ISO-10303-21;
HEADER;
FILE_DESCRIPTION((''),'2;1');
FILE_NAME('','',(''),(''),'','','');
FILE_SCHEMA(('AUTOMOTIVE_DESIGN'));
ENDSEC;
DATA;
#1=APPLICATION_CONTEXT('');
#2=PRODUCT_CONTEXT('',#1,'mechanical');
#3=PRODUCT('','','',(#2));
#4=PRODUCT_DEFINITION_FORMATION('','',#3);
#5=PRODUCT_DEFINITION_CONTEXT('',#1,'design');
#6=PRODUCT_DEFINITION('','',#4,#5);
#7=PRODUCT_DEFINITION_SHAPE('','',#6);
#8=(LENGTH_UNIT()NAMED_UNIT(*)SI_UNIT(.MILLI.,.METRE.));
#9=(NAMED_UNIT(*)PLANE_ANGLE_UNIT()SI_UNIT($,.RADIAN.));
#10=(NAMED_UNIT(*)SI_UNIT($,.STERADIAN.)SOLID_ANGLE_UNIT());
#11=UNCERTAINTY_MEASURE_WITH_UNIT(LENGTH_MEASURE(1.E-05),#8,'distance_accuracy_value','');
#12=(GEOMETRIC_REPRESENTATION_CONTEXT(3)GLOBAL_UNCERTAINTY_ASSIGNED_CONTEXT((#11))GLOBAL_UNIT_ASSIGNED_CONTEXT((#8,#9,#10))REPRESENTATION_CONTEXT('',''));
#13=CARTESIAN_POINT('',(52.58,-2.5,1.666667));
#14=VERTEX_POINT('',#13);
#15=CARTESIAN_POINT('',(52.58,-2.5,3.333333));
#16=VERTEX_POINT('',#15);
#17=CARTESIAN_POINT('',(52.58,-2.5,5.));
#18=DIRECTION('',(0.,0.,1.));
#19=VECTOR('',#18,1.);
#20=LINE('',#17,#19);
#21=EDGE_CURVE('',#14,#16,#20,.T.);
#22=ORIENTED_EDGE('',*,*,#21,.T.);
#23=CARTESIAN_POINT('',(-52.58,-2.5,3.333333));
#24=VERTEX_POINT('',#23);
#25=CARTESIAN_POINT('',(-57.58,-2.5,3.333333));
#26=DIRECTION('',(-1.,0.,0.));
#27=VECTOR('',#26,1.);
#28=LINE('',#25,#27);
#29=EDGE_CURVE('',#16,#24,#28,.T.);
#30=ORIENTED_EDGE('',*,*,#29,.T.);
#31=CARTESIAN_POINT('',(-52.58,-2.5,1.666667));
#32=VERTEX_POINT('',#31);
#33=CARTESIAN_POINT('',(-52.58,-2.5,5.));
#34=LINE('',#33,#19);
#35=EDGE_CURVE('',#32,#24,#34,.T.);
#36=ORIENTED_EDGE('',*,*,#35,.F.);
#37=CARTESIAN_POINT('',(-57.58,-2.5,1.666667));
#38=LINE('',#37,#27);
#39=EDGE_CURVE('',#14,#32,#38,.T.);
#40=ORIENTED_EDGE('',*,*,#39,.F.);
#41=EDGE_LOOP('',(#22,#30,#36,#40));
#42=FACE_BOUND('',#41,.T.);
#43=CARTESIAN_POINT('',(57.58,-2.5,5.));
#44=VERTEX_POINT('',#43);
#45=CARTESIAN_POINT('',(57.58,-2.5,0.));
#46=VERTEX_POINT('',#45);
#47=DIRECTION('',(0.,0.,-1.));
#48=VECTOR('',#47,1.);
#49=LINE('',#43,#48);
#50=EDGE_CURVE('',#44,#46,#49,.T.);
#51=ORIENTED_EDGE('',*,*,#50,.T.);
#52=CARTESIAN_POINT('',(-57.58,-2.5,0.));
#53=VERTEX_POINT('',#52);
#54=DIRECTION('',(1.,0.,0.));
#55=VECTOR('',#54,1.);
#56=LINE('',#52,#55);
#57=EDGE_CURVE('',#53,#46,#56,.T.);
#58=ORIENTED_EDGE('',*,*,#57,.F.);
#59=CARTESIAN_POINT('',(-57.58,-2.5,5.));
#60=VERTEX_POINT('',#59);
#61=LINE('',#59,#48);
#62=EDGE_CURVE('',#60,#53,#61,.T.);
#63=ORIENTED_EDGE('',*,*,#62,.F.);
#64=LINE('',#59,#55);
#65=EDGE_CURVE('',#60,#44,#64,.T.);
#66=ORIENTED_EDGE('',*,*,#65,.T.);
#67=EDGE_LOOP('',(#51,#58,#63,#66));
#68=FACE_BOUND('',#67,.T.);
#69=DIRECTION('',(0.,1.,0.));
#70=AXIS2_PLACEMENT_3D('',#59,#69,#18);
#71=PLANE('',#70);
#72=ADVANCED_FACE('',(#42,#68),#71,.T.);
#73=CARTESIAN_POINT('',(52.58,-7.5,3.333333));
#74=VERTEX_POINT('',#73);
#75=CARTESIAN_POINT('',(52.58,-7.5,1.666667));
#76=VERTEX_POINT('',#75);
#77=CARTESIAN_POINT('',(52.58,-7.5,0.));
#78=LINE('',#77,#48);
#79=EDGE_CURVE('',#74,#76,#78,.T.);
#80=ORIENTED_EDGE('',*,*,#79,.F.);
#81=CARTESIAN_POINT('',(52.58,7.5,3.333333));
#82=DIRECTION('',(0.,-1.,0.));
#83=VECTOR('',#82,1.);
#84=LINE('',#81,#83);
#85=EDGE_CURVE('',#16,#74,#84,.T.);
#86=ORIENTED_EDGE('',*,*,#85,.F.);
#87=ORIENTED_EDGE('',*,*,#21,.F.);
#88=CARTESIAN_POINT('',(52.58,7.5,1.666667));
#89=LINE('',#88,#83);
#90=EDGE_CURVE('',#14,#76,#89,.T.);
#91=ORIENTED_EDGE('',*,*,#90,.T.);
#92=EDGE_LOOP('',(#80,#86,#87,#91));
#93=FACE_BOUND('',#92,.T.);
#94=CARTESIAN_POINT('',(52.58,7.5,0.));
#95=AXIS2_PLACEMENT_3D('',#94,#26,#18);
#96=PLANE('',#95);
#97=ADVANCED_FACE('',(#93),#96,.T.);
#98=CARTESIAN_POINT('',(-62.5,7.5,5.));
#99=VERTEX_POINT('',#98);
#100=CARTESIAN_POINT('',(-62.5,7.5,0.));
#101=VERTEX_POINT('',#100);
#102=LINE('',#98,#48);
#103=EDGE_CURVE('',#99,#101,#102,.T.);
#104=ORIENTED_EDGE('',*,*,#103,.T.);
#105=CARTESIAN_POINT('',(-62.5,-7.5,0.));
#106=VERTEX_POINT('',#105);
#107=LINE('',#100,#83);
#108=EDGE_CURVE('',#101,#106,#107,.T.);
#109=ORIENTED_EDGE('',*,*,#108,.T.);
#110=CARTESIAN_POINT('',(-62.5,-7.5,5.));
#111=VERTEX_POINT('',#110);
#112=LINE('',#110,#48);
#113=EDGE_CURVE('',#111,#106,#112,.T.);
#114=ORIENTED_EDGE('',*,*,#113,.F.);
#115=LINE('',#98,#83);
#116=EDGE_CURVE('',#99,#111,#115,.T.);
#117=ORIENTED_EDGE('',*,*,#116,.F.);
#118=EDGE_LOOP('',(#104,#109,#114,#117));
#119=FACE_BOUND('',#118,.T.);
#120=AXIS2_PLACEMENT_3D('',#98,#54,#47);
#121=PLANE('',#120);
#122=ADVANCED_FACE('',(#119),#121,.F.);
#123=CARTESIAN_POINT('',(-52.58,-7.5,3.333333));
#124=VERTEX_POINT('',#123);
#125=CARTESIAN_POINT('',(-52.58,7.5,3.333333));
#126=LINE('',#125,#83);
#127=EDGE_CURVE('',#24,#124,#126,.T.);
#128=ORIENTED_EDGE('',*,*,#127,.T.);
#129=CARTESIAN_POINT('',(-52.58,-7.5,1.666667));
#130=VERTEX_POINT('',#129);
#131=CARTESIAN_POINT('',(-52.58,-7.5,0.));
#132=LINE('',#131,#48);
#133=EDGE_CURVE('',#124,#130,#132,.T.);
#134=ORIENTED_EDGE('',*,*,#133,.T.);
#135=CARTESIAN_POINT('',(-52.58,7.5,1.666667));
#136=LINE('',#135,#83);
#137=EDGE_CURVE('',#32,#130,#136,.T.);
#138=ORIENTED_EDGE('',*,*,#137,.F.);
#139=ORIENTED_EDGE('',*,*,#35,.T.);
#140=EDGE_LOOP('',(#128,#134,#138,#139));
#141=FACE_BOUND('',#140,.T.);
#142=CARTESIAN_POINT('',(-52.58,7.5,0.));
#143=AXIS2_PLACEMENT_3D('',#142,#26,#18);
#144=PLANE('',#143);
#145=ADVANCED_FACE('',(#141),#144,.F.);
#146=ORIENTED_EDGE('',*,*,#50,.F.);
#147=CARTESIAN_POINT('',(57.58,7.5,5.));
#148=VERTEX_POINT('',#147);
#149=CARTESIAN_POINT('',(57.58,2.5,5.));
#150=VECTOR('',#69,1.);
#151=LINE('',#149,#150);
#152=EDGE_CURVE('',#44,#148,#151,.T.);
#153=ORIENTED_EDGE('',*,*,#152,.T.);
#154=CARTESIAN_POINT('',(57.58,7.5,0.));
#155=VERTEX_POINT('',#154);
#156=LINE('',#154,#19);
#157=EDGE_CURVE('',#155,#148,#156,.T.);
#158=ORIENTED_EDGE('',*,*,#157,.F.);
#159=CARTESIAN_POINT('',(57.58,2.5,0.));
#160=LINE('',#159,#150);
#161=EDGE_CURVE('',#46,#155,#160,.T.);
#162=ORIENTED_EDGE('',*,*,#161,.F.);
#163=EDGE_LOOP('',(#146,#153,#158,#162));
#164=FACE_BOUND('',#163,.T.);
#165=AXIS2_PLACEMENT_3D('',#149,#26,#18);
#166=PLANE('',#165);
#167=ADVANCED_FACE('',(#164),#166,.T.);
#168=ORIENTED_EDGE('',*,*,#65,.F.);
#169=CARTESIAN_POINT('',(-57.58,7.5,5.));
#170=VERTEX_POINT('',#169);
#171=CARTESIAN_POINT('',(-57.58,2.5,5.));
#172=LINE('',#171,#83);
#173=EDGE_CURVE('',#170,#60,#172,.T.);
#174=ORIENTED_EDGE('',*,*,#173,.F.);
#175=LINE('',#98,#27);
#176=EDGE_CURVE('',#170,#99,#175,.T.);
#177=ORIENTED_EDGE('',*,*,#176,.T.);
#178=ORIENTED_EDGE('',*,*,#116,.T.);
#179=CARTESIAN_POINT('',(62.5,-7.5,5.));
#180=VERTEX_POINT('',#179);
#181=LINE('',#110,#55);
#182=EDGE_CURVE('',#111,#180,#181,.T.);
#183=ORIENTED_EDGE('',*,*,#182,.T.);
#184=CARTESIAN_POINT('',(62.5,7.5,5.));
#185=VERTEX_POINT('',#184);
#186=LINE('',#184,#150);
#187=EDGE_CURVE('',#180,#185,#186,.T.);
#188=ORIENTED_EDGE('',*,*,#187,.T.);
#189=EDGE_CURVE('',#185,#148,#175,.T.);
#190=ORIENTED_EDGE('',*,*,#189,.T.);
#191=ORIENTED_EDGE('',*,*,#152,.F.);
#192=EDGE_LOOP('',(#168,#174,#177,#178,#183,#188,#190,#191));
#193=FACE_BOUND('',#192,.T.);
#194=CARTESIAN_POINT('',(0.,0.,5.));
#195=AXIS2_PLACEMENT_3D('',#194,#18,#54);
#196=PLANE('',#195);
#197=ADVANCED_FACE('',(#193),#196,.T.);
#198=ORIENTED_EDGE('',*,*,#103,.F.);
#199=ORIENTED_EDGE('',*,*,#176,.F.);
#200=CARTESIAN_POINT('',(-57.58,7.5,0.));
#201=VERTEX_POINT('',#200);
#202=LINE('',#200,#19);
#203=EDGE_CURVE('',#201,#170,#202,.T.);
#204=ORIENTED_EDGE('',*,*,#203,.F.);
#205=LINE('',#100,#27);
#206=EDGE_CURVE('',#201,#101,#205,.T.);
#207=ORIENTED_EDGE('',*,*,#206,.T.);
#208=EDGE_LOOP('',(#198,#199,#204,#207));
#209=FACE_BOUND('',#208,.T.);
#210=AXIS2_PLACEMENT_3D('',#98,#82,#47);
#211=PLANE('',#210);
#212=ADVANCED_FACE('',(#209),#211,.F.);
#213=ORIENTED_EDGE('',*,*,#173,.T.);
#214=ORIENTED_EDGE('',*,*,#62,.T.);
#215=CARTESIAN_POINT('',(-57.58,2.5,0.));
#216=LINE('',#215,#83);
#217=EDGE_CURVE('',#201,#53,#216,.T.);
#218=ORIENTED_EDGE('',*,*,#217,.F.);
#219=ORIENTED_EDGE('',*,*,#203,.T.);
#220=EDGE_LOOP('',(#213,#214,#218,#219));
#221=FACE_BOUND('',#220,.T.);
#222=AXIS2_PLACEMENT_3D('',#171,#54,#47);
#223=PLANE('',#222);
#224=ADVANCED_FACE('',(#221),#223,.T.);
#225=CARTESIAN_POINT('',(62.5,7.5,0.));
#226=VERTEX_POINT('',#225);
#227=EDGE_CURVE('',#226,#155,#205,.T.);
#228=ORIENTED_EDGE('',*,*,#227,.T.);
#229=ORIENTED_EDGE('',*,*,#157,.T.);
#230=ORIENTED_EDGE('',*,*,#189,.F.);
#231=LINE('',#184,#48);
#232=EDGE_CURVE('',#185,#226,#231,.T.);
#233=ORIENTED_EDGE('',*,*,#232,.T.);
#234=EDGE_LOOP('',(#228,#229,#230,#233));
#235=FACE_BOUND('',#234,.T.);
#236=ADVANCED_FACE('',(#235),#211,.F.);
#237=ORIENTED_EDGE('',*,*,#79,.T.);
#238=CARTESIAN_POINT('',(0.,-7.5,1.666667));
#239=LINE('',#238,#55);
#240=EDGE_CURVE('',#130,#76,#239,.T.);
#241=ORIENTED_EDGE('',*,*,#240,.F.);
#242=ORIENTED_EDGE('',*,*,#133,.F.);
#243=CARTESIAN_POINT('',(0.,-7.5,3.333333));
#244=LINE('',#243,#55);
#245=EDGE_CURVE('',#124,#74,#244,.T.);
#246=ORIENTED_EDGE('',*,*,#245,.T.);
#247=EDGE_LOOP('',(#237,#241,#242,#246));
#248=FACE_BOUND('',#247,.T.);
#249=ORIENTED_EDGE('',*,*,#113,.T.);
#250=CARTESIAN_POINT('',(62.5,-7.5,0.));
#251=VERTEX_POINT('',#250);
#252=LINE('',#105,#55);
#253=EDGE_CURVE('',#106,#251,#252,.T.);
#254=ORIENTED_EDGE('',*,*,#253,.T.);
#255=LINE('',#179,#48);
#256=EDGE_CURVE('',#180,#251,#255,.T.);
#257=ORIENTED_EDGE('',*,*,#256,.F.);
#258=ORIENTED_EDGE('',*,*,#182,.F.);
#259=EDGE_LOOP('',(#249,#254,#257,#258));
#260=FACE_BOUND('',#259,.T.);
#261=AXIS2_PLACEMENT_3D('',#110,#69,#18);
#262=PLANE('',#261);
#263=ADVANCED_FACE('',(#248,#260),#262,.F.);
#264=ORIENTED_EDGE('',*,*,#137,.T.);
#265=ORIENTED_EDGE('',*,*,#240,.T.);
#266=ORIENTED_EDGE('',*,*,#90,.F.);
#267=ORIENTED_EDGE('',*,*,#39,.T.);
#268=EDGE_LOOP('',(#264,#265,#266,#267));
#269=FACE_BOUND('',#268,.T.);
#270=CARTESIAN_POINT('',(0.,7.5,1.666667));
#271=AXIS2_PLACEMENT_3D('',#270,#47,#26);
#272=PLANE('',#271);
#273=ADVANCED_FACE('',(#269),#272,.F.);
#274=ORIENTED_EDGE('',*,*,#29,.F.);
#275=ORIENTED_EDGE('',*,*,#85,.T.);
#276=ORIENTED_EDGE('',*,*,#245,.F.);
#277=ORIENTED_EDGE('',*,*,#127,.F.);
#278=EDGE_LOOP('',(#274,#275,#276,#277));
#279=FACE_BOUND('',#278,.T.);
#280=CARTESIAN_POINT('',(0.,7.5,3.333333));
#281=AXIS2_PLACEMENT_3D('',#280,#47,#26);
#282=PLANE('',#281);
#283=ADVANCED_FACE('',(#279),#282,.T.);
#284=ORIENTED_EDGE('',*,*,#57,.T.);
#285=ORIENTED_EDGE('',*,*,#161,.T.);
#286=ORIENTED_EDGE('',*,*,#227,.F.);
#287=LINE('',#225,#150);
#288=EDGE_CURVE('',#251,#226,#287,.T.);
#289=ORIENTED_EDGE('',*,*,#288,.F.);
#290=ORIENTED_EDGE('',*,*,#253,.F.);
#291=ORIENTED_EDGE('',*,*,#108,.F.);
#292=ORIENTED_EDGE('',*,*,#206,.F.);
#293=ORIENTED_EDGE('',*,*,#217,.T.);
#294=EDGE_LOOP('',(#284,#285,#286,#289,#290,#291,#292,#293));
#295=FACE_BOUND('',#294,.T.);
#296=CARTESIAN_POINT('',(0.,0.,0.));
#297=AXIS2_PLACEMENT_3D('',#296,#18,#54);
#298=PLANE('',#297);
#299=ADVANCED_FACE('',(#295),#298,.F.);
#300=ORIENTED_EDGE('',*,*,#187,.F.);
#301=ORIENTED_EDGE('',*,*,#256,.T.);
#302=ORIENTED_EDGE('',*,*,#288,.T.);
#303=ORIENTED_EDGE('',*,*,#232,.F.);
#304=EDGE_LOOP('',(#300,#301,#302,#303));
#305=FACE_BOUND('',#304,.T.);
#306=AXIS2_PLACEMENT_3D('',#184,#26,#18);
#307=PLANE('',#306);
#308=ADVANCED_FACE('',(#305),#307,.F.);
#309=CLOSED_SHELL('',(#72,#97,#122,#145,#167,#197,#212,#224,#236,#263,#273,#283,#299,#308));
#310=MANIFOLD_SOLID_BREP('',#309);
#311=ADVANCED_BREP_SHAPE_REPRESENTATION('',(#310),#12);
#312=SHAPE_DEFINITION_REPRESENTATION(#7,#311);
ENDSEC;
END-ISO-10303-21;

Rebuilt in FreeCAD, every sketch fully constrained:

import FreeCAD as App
import Part
import Sketcher

V = App.Vector
Q = App.Units.Quantity

doc = App.newDocument("Part")
params = doc.addObject("Spreadsheet::Sheet", "Params")
for row, (alias, value) in enumerate([
    ("sketch1_width", "125 mm"),
    ("sketch1_height", "15 mm"),
    ("sketch1_height2", "5 mm"),
    ("sketch1_width2", "115.16 mm"),
    ("pad1_length", "5 mm"),
    ("sketch2_width", "105.16 mm"),
    ("sketch3_height", "5 mm"),
    ("sketch3_width", "115.16 mm"),
], start=1):
    params.set(f"A{row}", alias)
    params.set(f"B{row}", "=" + value)
    params.setAlias(f"B{row}", alias)

body = doc.addObject("PartDesign::Body", "Body")

# Sketch on XY plane
sketch1 = body.newObject("Sketcher::SketchObject", "Sketch")
sketch1.AttachmentSupport = (doc.getObject("XY_Plane"), [""])
sketch1.MapMode = "FlatFace"
sketch1.addGeometry(Part.LineSegment(V(-62, 8, 0), V(-62, -8, 0)), False)
sketch1.addGeometry(Part.LineSegment(V(-62, -8, 0), V(62, -8, 0)), False)
sketch1.addGeometry(Part.LineSegment(V(62, -8, 0), V(62, 8, 0)), False)
sketch1.addGeometry(Part.LineSegment(V(62, 8, 0), V(-62, 8, 0)), False)
sketch1.addGeometry(Part.LineSegment(V(58, -2, 0), V(-58, -2, 0)), False)
sketch1.addGeometry(Part.LineSegment(V(-58, -2, 0), V(-58, 2, 0)), False)
sketch1.addGeometry(Part.LineSegment(V(-58, 2, 0), V(58, 2, 0)), False)
sketch1.addGeometry(Part.LineSegment(V(58, 2, 0), V(58, -2, 0)), False)
sketch1.addConstraint(Sketcher.Constraint("Coincident", 0, 2, 1, 1))
sketch1.addConstraint(Sketcher.Constraint("Coincident", 1, 2, 2, 1))
sketch1.addConstraint(Sketcher.Constraint("Coincident", 2, 2, 3, 1))
sketch1.addConstraint(Sketcher.Constraint("Coincident", 3, 2, 0, 1))
sketch1.addConstraint(Sketcher.Constraint("Coincident", 4, 2, 5, 1))
sketch1.addConstraint(Sketcher.Constraint("Coincident", 5, 2, 6, 1))
sketch1.addConstraint(Sketcher.Constraint("Coincident", 6, 2, 7, 1))
sketch1.addConstraint(Sketcher.Constraint("Coincident", 7, 2, 4, 1))
sketch1.addConstraint(Sketcher.Constraint("Vertical", 0))
sketch1.addConstraint(Sketcher.Constraint("Horizontal", 1))
sketch1.addConstraint(Sketcher.Constraint("Vertical", 2))
sketch1.addConstraint(Sketcher.Constraint("Horizontal", 3))
sketch1.addConstraint(Sketcher.Constraint("Horizontal", 4))
sketch1.addConstraint(Sketcher.Constraint("Vertical", 5))
sketch1.addConstraint(Sketcher.Constraint("Horizontal", 6))
sketch1.addConstraint(Sketcher.Constraint("Vertical", 7))
sketch1.addConstraint(Sketcher.Constraint("Symmetric", 0, 2, 2, 2, -1, 1))
sketch1.addConstraint(Sketcher.Constraint("Symmetric", 4, 2, 6, 2, -1, 1))
sketch1.addConstraint(Sketcher.Constraint("DistanceX", 1, 1, 1, 2, Q("125 mm")))
sketch1.addConstraint(Sketcher.Constraint("DistanceY", 0, 2, 0, 1, Q("15 mm")))
sketch1.addConstraint(Sketcher.Constraint("DistanceY", 5, 1, 5, 2, Q("5 mm")))
sketch1.addConstraint(Sketcher.Constraint("DistanceX", 4, 2, 4, 1, Q("115.16 mm")))
sketch1.setExpression("Constraints[18]", "Params.sketch1_width")
sketch1.setExpression("Constraints[19]", "Params.sketch1_height")
sketch1.setExpression("Constraints[20]", "Params.sketch1_height2")
sketch1.setExpression("Constraints[21]", "Params.sketch1_width2")
pad1 = body.newObject("PartDesign::Pad", "Pad")
pad1.Profile = sketch1
pad1.setExpression("Length", "Params.pad1_length")

# Sketch on XZ plane
sketch2 = body.newObject("Sketcher::SketchObject", "Sketch001")
sketch2.AttachmentSupport = (doc.getObject("XZ_Plane"), [""])
sketch2.MapMode = "FlatFace"
sketch2.AttachmentOffset = App.Placement(V(0, 0, 7.5), App.Rotation())
sketch2.addGeometry(Part.LineSegment(V(-52.6, 3.3, 0), V(-52.6, 1.7, 0)), False)
sketch2.addGeometry(Part.LineSegment(V(-52.6, 1.7, 0), V(52.6, 1.7, 0)), False)
sketch2.addGeometry(Part.LineSegment(V(52.6, 1.7, 0), V(52.6, 3.3, 0)), False)
sketch2.addGeometry(Part.LineSegment(V(52.6, 3.3, 0), V(-52.6, 3.3, 0)), False)
sketch2.addConstraint(Sketcher.Constraint("Coincident", 0, 2, 1, 1))
sketch2.addConstraint(Sketcher.Constraint("Coincident", 1, 2, 2, 1))
sketch2.addConstraint(Sketcher.Constraint("Coincident", 2, 2, 3, 1))
sketch2.addConstraint(Sketcher.Constraint("Coincident", 3, 2, 0, 1))
sketch2.addConstraint(Sketcher.Constraint("Vertical", 0))
sketch2.addConstraint(Sketcher.Constraint("Horizontal", 1))
sketch2.addConstraint(Sketcher.Constraint("Vertical", 2))
sketch2.addConstraint(Sketcher.Constraint("Horizontal", 3))
sketch2.addConstraint(Sketcher.Constraint("DistanceX", 1, 1, 1, 2, Q("105.16 mm")))
sketch2.addConstraint(Sketcher.Constraint("DistanceX", 0, 2, -1, 1, Q("52.58 mm")))
sketch2.addConstraint(Sketcher.Constraint("DistanceY", 0, 2, 0, 1, Q("1.666667 mm")))
sketch2.addConstraint(Sketcher.Constraint("DistanceY", -1, 1, 0, 2, Q("1.666667 mm")))
sketch2.setExpression("Constraints[8]", "Params.sketch2_width")
pocket1 = body.newObject("PartDesign::Pocket", "Pocket")
pocket1.Profile = sketch2
pocket1.Type = "ThroughAll"

# Sketch on XY plane
sketch3 = body.newObject("Sketcher::SketchObject", "Sketch002")
sketch3.AttachmentSupport = (doc.getObject("XY_Plane"), [""])
sketch3.MapMode = "FlatFace"
sketch3.AttachmentOffset = App.Placement(V(0, 0, 5), App.Rotation())
sketch3.addGeometry(Part.LineSegment(V(-58, 8, 0), V(-58, 2, 0)), False)
sketch3.addGeometry(Part.LineSegment(V(-58, 2, 0), V(58, 2, 0)), False)
sketch3.addGeometry(Part.LineSegment(V(58, 2, 0), V(58, 8, 0)), False)
sketch3.addGeometry(Part.LineSegment(V(58, 8, 0), V(-58, 8, 0)), False)
sketch3.addConstraint(Sketcher.Constraint("Coincident", 0, 2, 1, 1))
sketch3.addConstraint(Sketcher.Constraint("Coincident", 1, 2, 2, 1))
sketch3.addConstraint(Sketcher.Constraint("Coincident", 2, 2, 3, 1))
sketch3.addConstraint(Sketcher.Constraint("Coincident", 3, 2, 0, 1))
sketch3.addConstraint(Sketcher.Constraint("Vertical", 0))
sketch3.addConstraint(Sketcher.Constraint("Horizontal", 1))
sketch3.addConstraint(Sketcher.Constraint("Vertical", 2))
sketch3.addConstraint(Sketcher.Constraint("Horizontal", 3))
sketch3.addConstraint(Sketcher.Constraint("DistanceY", 0, 2, 0, 1, Q("5 mm")))
sketch3.addConstraint(Sketcher.Constraint("DistanceX", 1, 1, 1, 2, Q("115.16 mm")))
sketch3.addConstraint(Sketcher.Constraint("DistanceY", -1, 1, 0, 2, Q("2.5 mm")))
sketch3.addConstraint(Sketcher.Constraint("DistanceX", 0, 2, -1, 1, Q("57.58 mm")))
sketch3.setExpression("Constraints[8]", "Params.sketch3_height")
sketch3.setExpression("Constraints[9]", "Params.sketch3_width")
pocket2 = body.newObject("PartDesign::Pocket", "Pocket001")
pocket2.Profile = sketch3
pocket2.Type = "ThroughAll"

doc.recompute()
